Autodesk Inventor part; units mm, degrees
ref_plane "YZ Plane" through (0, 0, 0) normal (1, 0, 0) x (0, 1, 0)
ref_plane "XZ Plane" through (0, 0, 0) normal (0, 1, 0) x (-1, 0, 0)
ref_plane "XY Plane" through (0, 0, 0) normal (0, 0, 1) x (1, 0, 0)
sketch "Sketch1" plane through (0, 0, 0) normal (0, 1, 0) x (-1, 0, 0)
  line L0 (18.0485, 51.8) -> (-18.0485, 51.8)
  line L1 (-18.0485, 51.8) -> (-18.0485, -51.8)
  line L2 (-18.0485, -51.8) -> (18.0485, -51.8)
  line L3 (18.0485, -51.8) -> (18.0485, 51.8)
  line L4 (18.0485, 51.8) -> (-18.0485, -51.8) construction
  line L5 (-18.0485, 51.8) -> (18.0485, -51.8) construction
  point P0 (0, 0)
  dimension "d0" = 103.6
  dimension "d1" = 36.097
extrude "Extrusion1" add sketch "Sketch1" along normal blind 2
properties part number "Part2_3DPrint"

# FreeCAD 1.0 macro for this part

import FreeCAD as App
import Part
import Sketcher

V = App.Vector

doc = App.newDocument("Part")
body = doc.addObject("PartDesign::Body", "Body")

# Sketch on XZ plane
sketch1 = body.newObject("Sketcher::SketchObject", "Sketch")
sketch1.AttachmentSupport = (doc.getObject("XZ_Plane"), [""])
sketch1.MapMode = "FlatFace"
sketch1.addGeometry([
    Part.LineSegment(V(-18, -52, 0), V(-18, 52, 0)),
    Part.LineSegment(V(-18, 52, 0), V(18, 52, 0)),
    Part.LineSegment(V(18, 52, 0), V(18, -52, 0)),
    Part.LineSegment(V(18, -52, 0), V(-18, -52, 0)),
], False)
sketch1.addConstraint([
    Sketcher.Constraint("Coincident", 0, 2, 1, 1),
    Sketcher.Constraint("Coincident", 1, 2, 2, 1),
    Sketcher.Constraint("Coincident", 2, 2, 3, 1),
    Sketcher.Constraint("Coincident", 3, 2, 0, 1),
    Sketcher.Constraint("Vertical", 0),
    Sketcher.Constraint("Horizontal", 1),
    Sketcher.Constraint("Vertical", 2),
    Sketcher.Constraint("Horizontal", 3),
    Sketcher.Constraint("Symmetric", 0, 2, 2, 2, -1, 1),
    Sketcher.Constraint("DistanceY", 0, 1, 0, 2, 103.6),
    Sketcher.Constraint("DistanceX", 1, 1, 1, 2, 36.097),
])
pad1 = body.newObject("PartDesign::Pad", "Pad")
pad1.Profile = sketch1
pad1.Length = 2
pad1.Reversed = True

doc.recompute()
